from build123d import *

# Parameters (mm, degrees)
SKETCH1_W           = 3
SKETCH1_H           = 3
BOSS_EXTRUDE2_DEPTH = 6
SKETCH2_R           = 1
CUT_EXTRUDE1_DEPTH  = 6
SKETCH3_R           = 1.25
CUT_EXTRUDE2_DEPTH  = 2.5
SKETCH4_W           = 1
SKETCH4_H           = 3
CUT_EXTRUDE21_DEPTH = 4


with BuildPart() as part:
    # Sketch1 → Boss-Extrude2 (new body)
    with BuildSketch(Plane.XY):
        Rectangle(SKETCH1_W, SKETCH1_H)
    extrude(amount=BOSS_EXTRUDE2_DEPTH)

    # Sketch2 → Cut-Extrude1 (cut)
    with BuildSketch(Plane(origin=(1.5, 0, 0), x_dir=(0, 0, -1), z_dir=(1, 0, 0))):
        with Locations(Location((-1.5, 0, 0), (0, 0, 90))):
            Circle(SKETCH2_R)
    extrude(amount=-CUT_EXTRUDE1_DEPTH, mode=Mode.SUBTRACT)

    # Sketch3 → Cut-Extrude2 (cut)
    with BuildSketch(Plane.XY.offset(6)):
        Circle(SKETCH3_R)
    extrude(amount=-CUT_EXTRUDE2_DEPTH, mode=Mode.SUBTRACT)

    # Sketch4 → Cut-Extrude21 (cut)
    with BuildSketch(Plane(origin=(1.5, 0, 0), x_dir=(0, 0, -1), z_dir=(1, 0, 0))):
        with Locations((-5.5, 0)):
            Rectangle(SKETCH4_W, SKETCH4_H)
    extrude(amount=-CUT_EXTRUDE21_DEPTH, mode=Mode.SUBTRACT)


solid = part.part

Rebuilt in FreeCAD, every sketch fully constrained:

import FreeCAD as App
import Part
import Sketcher

V = App.Vector
Q = App.Units.Quantity


def add_polygon(sketch, points):
    """Adds a closed chain of lines whose ends are joined by coincident constraints."""
    first, n = sketch.GeometryCount, len(points)
    for a, b in zip(points, points[1:] + points[:1]):
        sketch.addGeometry(Part.LineSegment(App.Vector(*a, 0), App.Vector(*b, 0)), False)
    for i in range(n):
        sketch.addConstraint(Sketcher.Constraint("Coincident", first + i, 2, first + (i + 1) % n, 1))

doc = App.newDocument("Part")
body = doc.addObject("PartDesign::Body", "Body")

# Sketch on XY plane
sketch1 = doc.addObject("Sketcher::SketchObject", "Sketch")
body.addObject(sketch1)
sketch1.AttachmentSupport = (doc.XY_Plane, [""])
sketch1.MapMode = "FlatFace"
add_polygon(sketch1, [(-1.5, 1.5), (-1.5, -1.5), (1.5, -1.5), (1.5, 1.5)])  # lines 0-3
sketch1.addConstraint(Sketcher.Constraint("Vertical", 0))
sketch1.addConstraint(Sketcher.Constraint("Horizontal", 1))
sketch1.addConstraint(Sketcher.Constraint("Vertical", 2))
sketch1.addConstraint(Sketcher.Constraint("Horizontal", 3))
sketch1.addConstraint(Sketcher.Constraint("Symmetric", 0, 2, 2, 2, -1, 1))
sketch1.addConstraint(Sketcher.Constraint("Equal", 3, 0))
sketch1.addConstraint(Sketcher.Constraint("DistanceX", 1, 1, 1, 2, Q("3 mm")))
pad1 = doc.addObject("PartDesign::Pad", "Pad")
body.addObject(pad1)
pad1.Profile = sketch1
pad1.Length = 6

# Sketch on YZ plane
sketch2 = doc.addObject("Sketcher::SketchObject", "Sketch001")
body.addObject(sketch2)
sketch2.AttachmentSupport = (doc.YZ_Plane, [""])
sketch2.MapMode = "FlatFace"
sketch2.AttachmentOffset = App.Placement(V(0, 0, 1.5), App.Rotation())
sketch2.addGeometry(Part.Circle(V(0, 1.5, 0), V(0, 0, 1), 1), False)
sketch2.addConstraint(Sketcher.Constraint("PointOnObject", 0, 3, -2))
sketch2.addConstraint(Sketcher.Constraint("Diameter", 0, Q("2 mm")))
sketch2.addConstraint(Sketcher.Constraint("DistanceY", -1, 1, 0, 3, Q("1.5 mm")))
pocket1 = doc.addObject("PartDesign::Pocket", "Pocket")
body.addObject(pocket1)
pocket1.Profile = sketch2
pocket1.Length = 6

# Sketch on XY plane
sketch3 = doc.addObject("Sketcher::SketchObject", "Sketch002")
body.addObject(sketch3)
sketch3.AttachmentSupport = (doc.XY_Plane, [""])
sketch3.MapMode = "FlatFace"
sketch3.AttachmentOffset = App.Placement(V(0, 0, 6), App.Rotation())
sketch3.addGeometry(Part.Circle(V(0, 0, 0), V(0, 0, 1), 1.2), False)
sketch3.addConstraint(Sketcher.Constraint("Coincident", 0, 3, -1, 1))
sketch3.addConstraint(Sketcher.Constraint("Diameter", 0, Q("2.5 mm")))
pocket2 = doc.addObject("PartDesign::Pocket", "Pocket001")
body.addObject(pocket2)
pocket2.Profile = sketch3
pocket2.Length = 2.5

# Sketch on YZ plane
sketch4 = doc.addObject("Sketcher::SketchObject", "Sketch003")
body.addObject(sketch4)
sketch4.AttachmentSupport = (doc.YZ_Plane, [""])
sketch4.MapMode = "FlatFace"
sketch4.AttachmentOffset = App.Placement(V(0, 0, 1.5), App.Rotation())
add_polygon(sketch4, [(1.5, 6), (-1.5, 6), (-1.5, 5), (1.5, 5)])  # lines 0-3
sketch4.addConstraint(Sketcher.Constraint("Horizontal", 0))
sketch4.addConstraint(Sketcher.Constraint("Vertical", 1))
sketch4.addConstraint(Sketcher.Constraint("Horizontal", 2))
sketch4.addConstraint(Sketcher.Constraint("Vertical", 3))
sketch4.addConstraint(Sketcher.Constraint("DistanceX", 0, 2, 0, 1, Q("3 mm")))
sketch4.addConstraint(Sketcher.Constraint("DistanceY", 1, 2, 1, 1, Q("1 mm")))
sketch4.addConstraint(Sketcher.Constraint("DistanceY", -1, 1, 0, 2, Q("6 mm")))
sketch4.addConstraint(Sketcher.Constraint("DistanceX", 0, 2, -1, 1, Q("1.5 mm")))
pocket3 = doc.addObject("PartDesign::Pocket", "Pocket002")
body.addObject(pocket3)
pocket3.Profile = sketch4
pocket3.Length = 4

doc.recompute()
